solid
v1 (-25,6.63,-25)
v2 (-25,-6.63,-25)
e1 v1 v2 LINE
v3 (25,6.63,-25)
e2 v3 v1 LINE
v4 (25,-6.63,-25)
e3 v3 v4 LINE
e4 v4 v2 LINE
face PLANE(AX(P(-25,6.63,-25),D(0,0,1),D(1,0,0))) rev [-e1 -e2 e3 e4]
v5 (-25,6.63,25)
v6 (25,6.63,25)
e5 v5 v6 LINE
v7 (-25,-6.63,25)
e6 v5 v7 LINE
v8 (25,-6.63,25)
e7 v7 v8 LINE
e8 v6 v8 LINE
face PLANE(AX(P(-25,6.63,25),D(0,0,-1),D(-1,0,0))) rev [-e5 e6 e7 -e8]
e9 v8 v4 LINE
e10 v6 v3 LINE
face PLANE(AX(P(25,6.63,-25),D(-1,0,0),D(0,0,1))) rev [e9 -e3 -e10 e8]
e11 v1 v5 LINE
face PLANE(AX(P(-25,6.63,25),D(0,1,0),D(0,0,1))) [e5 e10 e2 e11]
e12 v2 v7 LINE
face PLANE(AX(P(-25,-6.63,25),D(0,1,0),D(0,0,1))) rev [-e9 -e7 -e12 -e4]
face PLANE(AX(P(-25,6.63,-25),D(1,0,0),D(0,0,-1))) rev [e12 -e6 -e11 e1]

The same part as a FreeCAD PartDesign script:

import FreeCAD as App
import Part
import Sketcher

doc = App.newDocument("Part")
body = doc.addObject("PartDesign::Body", "Body")

# Sketch on XZ plane
sketch1 = doc.addObject("Sketcher::SketchObject", "Sketch")
body.addObject(sketch1)
sketch1.AttachmentSupport = (doc.XZ_Plane, [""])
sketch1.MapMode = "FlatFace"
sketch1.addGeometry(Part.LineSegment(App.Vector(-25, -25, 0), App.Vector(-25, 25, 0)), False)
sketch1.addGeometry(Part.LineSegment(App.Vector(-25, 25, 0), App.Vector(25, 25, 0)), False)
sketch1.addGeometry(Part.LineSegment(App.Vector(25, 25, 0), App.Vector(25, -25, 0)), False)
sketch1.addGeometry(Part.LineSegment(App.Vector(25, -25, 0), App.Vector(-25, -25, 0)), False)
sketch1.addConstraint(Sketcher.Constraint("Coincident", 0, 2, 1, 1))
sketch1.addConstraint(Sketcher.Constraint("Coincident", 1, 2, 2, 1))
sketch1.addConstraint(Sketcher.Constraint("Coincident", 2, 2, 3, 1))
sketch1.addConstraint(Sketcher.Constraint("Coincident", 3, 2, 0, 1))
sketch1.addConstraint(Sketcher.Constraint("Vertical", 0))
sketch1.addConstraint(Sketcher.Constraint("Horizontal", 1))
sketch1.addConstraint(Sketcher.Constraint("Vertical", 2))
sketch1.addConstraint(Sketcher.Constraint("Horizontal", 3))
sketch1.addConstraint(Sketcher.Constraint("Symmetric", 0, 2, 2, 2, -1, 1))
sketch1.addConstraint(Sketcher.Constraint("Equal", 3, 0))
sketch1.addConstraint(Sketcher.Constraint("DistanceX", 1, 1, 1, 2, 50.0))
pad1 = doc.addObject("PartDesign::Pad", "Pad")
body.addObject(pad1)
pad1.Profile = sketch1
pad1.Length = 13.26
pad1.Midplane = True

doc.recompute()
